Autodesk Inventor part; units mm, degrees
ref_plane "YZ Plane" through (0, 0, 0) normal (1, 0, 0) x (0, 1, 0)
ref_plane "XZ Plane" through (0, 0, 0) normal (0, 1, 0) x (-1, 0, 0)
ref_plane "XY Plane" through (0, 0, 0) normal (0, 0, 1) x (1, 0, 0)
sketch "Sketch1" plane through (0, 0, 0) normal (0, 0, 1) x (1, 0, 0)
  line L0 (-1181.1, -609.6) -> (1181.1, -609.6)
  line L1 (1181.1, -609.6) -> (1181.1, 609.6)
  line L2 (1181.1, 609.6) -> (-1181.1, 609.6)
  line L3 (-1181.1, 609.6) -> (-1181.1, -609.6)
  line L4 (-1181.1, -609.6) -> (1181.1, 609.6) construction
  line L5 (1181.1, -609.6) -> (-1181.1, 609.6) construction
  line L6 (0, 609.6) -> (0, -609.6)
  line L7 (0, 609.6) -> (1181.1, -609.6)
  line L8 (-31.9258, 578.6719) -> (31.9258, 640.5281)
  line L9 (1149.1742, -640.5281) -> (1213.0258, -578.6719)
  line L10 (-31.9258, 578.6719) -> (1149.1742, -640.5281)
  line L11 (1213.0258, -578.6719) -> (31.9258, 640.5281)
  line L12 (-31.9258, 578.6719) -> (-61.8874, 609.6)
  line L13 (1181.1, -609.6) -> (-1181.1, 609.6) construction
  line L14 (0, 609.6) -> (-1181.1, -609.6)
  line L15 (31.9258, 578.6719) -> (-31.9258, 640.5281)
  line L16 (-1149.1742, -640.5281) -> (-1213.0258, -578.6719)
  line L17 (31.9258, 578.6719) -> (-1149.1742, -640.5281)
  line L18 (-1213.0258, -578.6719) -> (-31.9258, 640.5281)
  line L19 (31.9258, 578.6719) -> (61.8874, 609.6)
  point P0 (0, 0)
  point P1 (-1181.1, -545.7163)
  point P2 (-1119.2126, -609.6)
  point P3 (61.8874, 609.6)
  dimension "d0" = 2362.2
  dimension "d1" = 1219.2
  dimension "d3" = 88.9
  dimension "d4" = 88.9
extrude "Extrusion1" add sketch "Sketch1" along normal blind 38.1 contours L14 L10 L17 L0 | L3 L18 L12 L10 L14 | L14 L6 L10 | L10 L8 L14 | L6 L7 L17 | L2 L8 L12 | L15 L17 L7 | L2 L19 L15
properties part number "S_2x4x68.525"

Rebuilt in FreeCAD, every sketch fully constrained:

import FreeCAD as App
import Part
import Sketcher

V = App.Vector
Q = App.Units.Quantity

doc = App.newDocument("Part")
body = doc.addObject("PartDesign::Body", "Body")

sketch1 = doc.addObject("Sketcher::SketchObject", "Sketch")
body.addObject(sketch1)
sketch1.AttachmentSupport = (doc.XY_Plane, [""])
sketch1.MapMode = "FlatFace"
sketch1.addGeometry([
    Part.LineSegment(V(-1119, -610, 0), V(32, 579, 0)),
    Part.LineSegment(V(32, 579, 0), V(62, 610, 0)),
    Part.LineSegment(V(62, 610, 0), V(-62, 610, 0)),
    Part.LineSegment(V(-62, 610, 0), V(-1181, -546, 0)),
    Part.LineSegment(V(-1181, -546, 0), V(-1181, -610, 0)),
    Part.LineSegment(V(-1181, -610, 0), V(-1119, -610, 0)),
], False)
sketch1.addConstraint([
    Sketcher.Constraint("Coincident", 0, 2, 1, 1),
    Sketcher.Constraint("Coincident", 1, 2, 2, 1),
    Sketcher.Constraint("Coincident", 2, 2, 3, 1),
    Sketcher.Constraint("Coincident", 3, 2, 4, 1),
    Sketcher.Constraint("Coincident", 4, 2, 5, 1),
    Sketcher.Constraint("Coincident", 5, 2, 0, 1),
    Sketcher.Constraint("Horizontal", 2),
    Sketcher.Constraint("Vertical", 4),
    Sketcher.Constraint("Horizontal", 5),
    Sketcher.Constraint("Parallel", 0, 1),
    Sketcher.Constraint("Parallel", 1, 3),
    Sketcher.Constraint("DistanceY", 4, 2, 2, 2, Q("48 in")),
    Sketcher.Constraint("DistanceY", -1, 1, 1, 2, Q("24 in")),
    Sketcher.Constraint("DistanceX", 3, 2, -1, 1, Q("46.5 in")),
    Sketcher.Constraint("DistanceX", 5, 2, 1, 2, Q("46.5 in")),
    Sketcher.Constraint("DistanceX", 5, 1, 5, 2, Q("2.4365 in")),
    Sketcher.Constraint("DistanceY", 4, 2, 4, 1, Q("2.5151 in")),
    Sketcher.Constraint("Distance", 0, Q("65.1347 in")),
])
pad1 = doc.addObject("PartDesign::Pad", "Pad")
body.addObject(pad1)
pad1.Profile = sketch1
pad1.Length = Q("1.5 in")

doc.recompute()
